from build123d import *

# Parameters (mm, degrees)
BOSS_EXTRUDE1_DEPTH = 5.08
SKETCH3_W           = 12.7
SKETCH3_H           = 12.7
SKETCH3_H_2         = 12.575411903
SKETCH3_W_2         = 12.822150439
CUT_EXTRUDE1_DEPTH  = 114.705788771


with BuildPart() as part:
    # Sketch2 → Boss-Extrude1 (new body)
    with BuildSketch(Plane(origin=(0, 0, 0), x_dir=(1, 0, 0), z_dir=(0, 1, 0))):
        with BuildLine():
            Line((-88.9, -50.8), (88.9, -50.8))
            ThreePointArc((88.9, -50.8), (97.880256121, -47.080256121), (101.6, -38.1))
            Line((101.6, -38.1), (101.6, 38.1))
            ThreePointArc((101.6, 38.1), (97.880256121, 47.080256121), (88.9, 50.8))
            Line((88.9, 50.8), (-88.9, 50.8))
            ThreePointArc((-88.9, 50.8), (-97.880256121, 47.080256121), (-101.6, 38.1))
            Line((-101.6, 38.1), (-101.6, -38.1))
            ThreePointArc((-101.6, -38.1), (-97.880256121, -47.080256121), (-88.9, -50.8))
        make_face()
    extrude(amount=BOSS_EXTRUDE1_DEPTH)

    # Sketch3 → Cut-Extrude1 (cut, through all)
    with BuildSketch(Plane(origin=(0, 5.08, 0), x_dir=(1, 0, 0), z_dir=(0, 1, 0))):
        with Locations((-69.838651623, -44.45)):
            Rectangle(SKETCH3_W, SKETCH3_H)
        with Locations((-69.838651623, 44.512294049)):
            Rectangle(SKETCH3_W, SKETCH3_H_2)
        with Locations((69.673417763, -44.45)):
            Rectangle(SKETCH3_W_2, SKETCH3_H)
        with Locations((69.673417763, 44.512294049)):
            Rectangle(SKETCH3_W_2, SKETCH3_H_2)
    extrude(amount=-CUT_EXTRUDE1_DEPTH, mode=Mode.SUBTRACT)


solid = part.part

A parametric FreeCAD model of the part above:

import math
import FreeCAD as App
import Part
import Sketcher
from FreeCAD import Vector
Q = App.Units.Quantity


def add_polygon(sketch, points):
    """Adds a closed chain of lines whose ends are joined by coincident constraints."""
    first, n = sketch.GeometryCount, len(points)
    for a, b in zip(points, points[1:] + points[:1]):
        sketch.addGeometry(Part.LineSegment(App.Vector(*a, 0), App.Vector(*b, 0)), False)
    for i in range(n):
        sketch.addConstraint(Sketcher.Constraint("Coincident", first + i, 2, first + (i + 1) % n, 1))

doc = App.newDocument("Part")
params = doc.addObject("Spreadsheet::Sheet", "Params")
for row, (alias, value) in enumerate([
    ("sketch1_radius", "0.5 in"),
    ("sketch1_width", "7 in"),
    ("sketch1_height", "3 in"),
    ("pad1_length", "0.2 in"),
    ("sketch2_width", "0.5 in"),
], start=1):
    params.set(f"A{row}", alias)
    params.set(f"B{row}", "=" + value)
    params.setAlias(f"B{row}", alias)

body = doc.addObject("PartDesign::Body", "Body")

sketch1 = body.newObject("Sketcher::SketchObject", "Sketch")
sketch1.AttachmentSupport = (doc.getObject("XZ_Plane"), [""])
sketch1.MapMode = "FlatFace"
sketch1.addGeometry([
    Part.LineSegment(Vector(-88.9, 50.8, 0), Vector(88.9, 50.8, 0)),
    Part.ArcOfCircle(Part.Circle(Vector(88.9, 38.1, 0), Vector(0, 0, 1), 12.7), math.radians(0), math.radians(90)),
    Part.LineSegment(Vector(101.6, 38.1, 0), Vector(101.6, -38.1, 0)),
    Part.ArcOfCircle(Part.Circle(Vector(88.9, -38.1, 0), Vector(0, 0, 1), 12.7), math.radians(-90), math.radians(0)),
    Part.LineSegment(Vector(88.9, -50.8, 0), Vector(-88.9, -50.8, 0)),
    Part.ArcOfCircle(Part.Circle(Vector(-88.9, -38.1, 0), Vector(0, 0, 1), 12.7), math.radians(180), math.radians(270)),
    Part.LineSegment(Vector(-101.6, -38.1, 0), Vector(-101.6, 38.1, 0)),
    Part.ArcOfCircle(Part.Circle(Vector(-88.9, 38.1, 0), Vector(0, 0, 1), 12.7), math.radians(90), math.radians(180)),
], False)
sketch1.addConstraint([
    Sketcher.Constraint("Tangent", 0, 2, 1, 2),
    Sketcher.Constraint("Tangent", 1, 1, 2, 1),
    Sketcher.Constraint("Tangent", 2, 2, 3, 2),
    Sketcher.Constraint("Tangent", 3, 1, 4, 1),
    Sketcher.Constraint("Tangent", 4, 2, 5, 2),
    Sketcher.Constraint("Tangent", 5, 1, 6, 1),
    Sketcher.Constraint("Tangent", 6, 2, 7, 2),
    Sketcher.Constraint("Tangent", 7, 1, 0, 1),
    Sketcher.Constraint("Horizontal", 0),
    Sketcher.Constraint("Vertical", 2),
    Sketcher.Constraint("Horizontal", 4),
    Sketcher.Constraint("Vertical", 6),
    Sketcher.Constraint("Equal", 1, 3),
    Sketcher.Constraint("Equal", 3, 5),
    Sketcher.Constraint("Equal", 5, 7),
    Sketcher.Constraint("Symmetric", 1, 3, 5, 3, -1, 1),
    Sketcher.Constraint("Radius", 1, Q("0.5 in")),
    Sketcher.Constraint("DistanceX", 0, 1, 0, 2, Q("7 in")),
    Sketcher.Constraint("DistanceY", 2, 2, 2, 1, Q("3 in")),
])
sketch1.setExpression("Constraints[16]", "Params.sketch1_radius")
sketch1.setExpression("Constraints[17]", "Params.sketch1_width")
sketch1.setExpression("Constraints[18]", "Params.sketch1_height")
pad1 = body.newObject("PartDesign::Pad", "Pad")
pad1.Profile = sketch1
pad1.setExpression("Length", "Params.pad1_length")
pad1.Reversed = True

sketch2 = body.newObject("Sketcher::SketchObject", "Sketch001")
sketch2.AttachmentSupport = (doc.getObject("XZ_Plane"), [""])
sketch2.MapMode = "FlatFace"
sketch2.AttachmentOffset = App.Placement(Vector(0, 0, -0.2 * 25.4), App.Rotation())
add_polygon(sketch2, [(-76.188652, 38.1), (-76.188652, 50.8), (-63.488652, 50.8), (-63.488652, 38.1)])
add_polygon(sketch2, [(-76.188652, -50.8), (-76.188652, -38.224588), (-63.488652, -38.224588), (-63.488652, -50.8)])
add_polygon(sketch2, [(63.262343, 38.1), (63.262343, 50.8), (76.084493, 50.8), (76.084493, 38.1)])
add_polygon(sketch2, [(63.262343, -50.8), (63.262343, -38.224588), (76.084493, -38.224588), (76.084493, -50.8)])
sketch2.addConstraint([
    Sketcher.Constraint("Vertical", 0),
    Sketcher.Constraint("Horizontal", 1),
    Sketcher.Constraint("Vertical", 2),
    Sketcher.Constraint("Horizontal", 3),
    Sketcher.Constraint("Vertical", 4),
    Sketcher.Constraint("Horizontal", 5),
    Sketcher.Constraint("Vertical", 6),
    Sketcher.Constraint("Horizontal", 7),
    Sketcher.Constraint("Vertical", 8),
    Sketcher.Constraint("Horizontal", 9),
    Sketcher.Constraint("Vertical", 10),
    Sketcher.Constraint("Horizontal", 11),
    Sketcher.Constraint("Vertical", 12),
    Sketcher.Constraint("Horizontal", 13),
    Sketcher.Constraint("Vertical", 14),
    Sketcher.Constraint("Horizontal", 15),
    Sketcher.Constraint("Symmetric", 1, 2, 6, 2, -1),
    Sketcher.Constraint("Symmetric", 9, 2, 14, 2, -1),
    Sketcher.Constraint("Horizontal", 1, 2, 8, 2),
    Sketcher.Constraint("Horizontal", 3, 2, 10, 2),
    Sketcher.Constraint("Horizontal", 5, 2, 12, 2),
    Sketcher.Constraint("Vertical", 3, 2, 4, 2),
    Sketcher.Constraint("Vertical", 11, 2, 12, 2),
    Sketcher.Constraint("Equal", 7, 0),
    Sketcher.Constraint("DistanceX", 1, 1, 1, 2, Q("0.5 in")),
    Sketcher.Constraint("DistanceY", -1, 1, 0, 2, Q("2 in")),
    Sketcher.Constraint("DistanceX", 9, 1, 9, 2, Q("12.82215 mm")),
    Sketcher.Constraint("DistanceY", 4, 1, 4, 2, Q("12.575412 mm")),
    Sketcher.Constraint("DistanceX", 0, 2, -1, 1, Q("76.188652 mm")),
    Sketcher.Constraint("DistanceX", -1, 1, 8, 2, Q("63.262343 mm")),
])
sketch2.setExpression("Constraints[40]", "Params.sketch2_width")
pocket1 = body.newObject("PartDesign::Pocket", "Pocket")
pocket1.Profile = sketch2
pocket1.Type = "ThroughAll"
pocket1.Reversed = True

doc.recompute()
